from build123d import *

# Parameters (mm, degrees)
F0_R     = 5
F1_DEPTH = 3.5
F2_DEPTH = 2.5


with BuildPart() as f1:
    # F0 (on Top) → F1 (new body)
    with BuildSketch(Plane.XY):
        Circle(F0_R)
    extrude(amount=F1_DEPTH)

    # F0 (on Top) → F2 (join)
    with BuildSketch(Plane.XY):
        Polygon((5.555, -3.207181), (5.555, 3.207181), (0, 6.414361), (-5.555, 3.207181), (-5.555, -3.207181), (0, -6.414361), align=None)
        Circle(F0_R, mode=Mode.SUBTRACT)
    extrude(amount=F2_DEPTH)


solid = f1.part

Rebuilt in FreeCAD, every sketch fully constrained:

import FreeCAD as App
import Part
import Sketcher
from FreeCAD import Vector
Q = App.Units.Quantity


def add_polygon(sketch, points):
    """Adds a closed chain of lines whose ends are joined by coincident constraints."""
    first, n = sketch.GeometryCount, len(points)
    for a, b in zip(points, points[1:] + points[:1]):
        sketch.addGeometry(Part.LineSegment(App.Vector(*a, 0), App.Vector(*b, 0)), False)
    for i in range(n):
        sketch.addConstraint(Sketcher.Constraint("Coincident", first + i, 2, first + (i + 1) % n, 1))

doc = App.newDocument("Part")
body = doc.addObject("PartDesign::Body", "Body")

sketch1 = body.newObject("Sketcher::SketchObject", "Sketch")
sketch1.AttachmentSupport = (doc.getObject("XY_Plane"), [""])
sketch1.MapMode = "FlatFace"
sketch1.addGeometry(Part.Circle(Vector(0, 0, 0), Vector(0, 0, 1), 5), False)
sketch1.addConstraint([
    Sketcher.Constraint("Coincident", 0, 3, -1, 1),
    Sketcher.Constraint("Diameter", 0, Q("10 mm")),
])
pad1 = body.newObject("PartDesign::Pad", "Pad")
pad1.Profile = sketch1
pad1.Length = 3.5

sketch2 = body.newObject("Sketcher::SketchObject", "Sketch001")
sketch2.AttachmentSupport = (doc.getObject("XY_Plane"), [""])
sketch2.MapMode = "FlatFace"
add_polygon(sketch2, [(6, -3), (6, 3), (0, 6), (-6, 3), (-6, -3), (0, -6)])
sketch2.addGeometry(Part.Circle(Vector(0, 0, 0), Vector(0, 0, 1), 5), False)
sketch2.addConstraint([
    Sketcher.Constraint("Vertical", 0),
    Sketcher.Constraint("Vertical", 3),
    Sketcher.Constraint("Coincident", 6, 3, -1, 1),
    Sketcher.Constraint("Symmetric", 0, 2, 3, 2, -1, 1),
    Sketcher.Constraint("Symmetric", 1, 2, 4, 2, -1, 1),
    Sketcher.Constraint("PointOnObject", 1, 2, -2),
    Sketcher.Constraint("Parallel", 2, 5),
    Sketcher.Constraint("Horizontal", 0, 2, 2, 2),
    Sketcher.Constraint("Diameter", 6, Q("10 mm")),
    Sketcher.Constraint("Angle", 1, Q("150.000006 deg")),
    Sketcher.Constraint("DistanceX", 2, 2, 0, 2, Q("11.11 mm")),
    Sketcher.Constraint("DistanceY", 0, 1, 0, 2, Q("6.414362 mm")),
])
pad2 = body.newObject("PartDesign::Pad", "Pad001")
pad2.Profile = sketch2
pad2.Length = 2.5

doc.recompute()
